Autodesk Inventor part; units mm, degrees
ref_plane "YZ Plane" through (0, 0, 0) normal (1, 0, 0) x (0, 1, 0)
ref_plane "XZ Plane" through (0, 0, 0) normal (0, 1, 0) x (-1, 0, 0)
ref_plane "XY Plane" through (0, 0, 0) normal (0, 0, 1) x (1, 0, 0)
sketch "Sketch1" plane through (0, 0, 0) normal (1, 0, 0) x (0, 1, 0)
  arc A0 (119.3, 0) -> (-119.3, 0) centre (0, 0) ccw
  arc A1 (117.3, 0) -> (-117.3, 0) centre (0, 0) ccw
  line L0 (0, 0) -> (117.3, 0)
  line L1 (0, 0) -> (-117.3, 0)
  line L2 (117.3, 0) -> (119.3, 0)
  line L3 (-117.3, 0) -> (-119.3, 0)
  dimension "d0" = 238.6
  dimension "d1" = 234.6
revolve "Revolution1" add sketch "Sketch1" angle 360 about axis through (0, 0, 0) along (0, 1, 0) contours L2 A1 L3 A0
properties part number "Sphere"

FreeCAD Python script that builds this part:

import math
import FreeCAD as App
import Part
import Sketcher

V = App.Vector

doc = App.newDocument("Part")
body = doc.addObject("PartDesign::Body", "Body")

sketch1 = body.newObject("Sketcher::SketchObject", "Sketch")
sketch1.AttachmentSupport = (doc.getObject("YZ_Plane"), [""])
sketch1.MapMode = "FlatFace"
sketch1.addGeometry([
    Part.LineSegment(V(117.3, 0, 0), V(119.3, 0, 0)),
    Part.ArcOfCircle(Part.Circle(V(0, 0, 0), V(0, 0, 1), 119.3), math.radians(0), math.radians(180)),
    Part.LineSegment(V(-119.3, 0, 0), V(-117.3, 0, 0)),
    Part.ArcOfCircle(Part.Circle(V(0, 0, 0), V(0, 0, 1), 117.3), math.radians(0), math.radians(180)),
], False)
sketch1.addConstraint([
    Sketcher.Constraint("Coincident", 0, 2, 1, 1),
    Sketcher.Constraint("Coincident", 1, 2, 2, 1),
    Sketcher.Constraint("Coincident", 2, 2, 3, 2),
    Sketcher.Constraint("Coincident", 3, 1, 0, 1),
    Sketcher.Constraint("Horizontal", 0),
    Sketcher.Constraint("Horizontal", 2),
    Sketcher.Constraint("Coincident", 1, 3, -1, 1),
    Sketcher.Constraint("Coincident", 3, 3, -1, 1),
    Sketcher.Constraint("PointOnObject", 0, 2, -1),
    Sketcher.Constraint("PointOnObject", 1, 2, -1),
    Sketcher.Constraint("Radius", 1, 119.3),
    Sketcher.Constraint("Radius", 3, 117.3),
])
revolution = body.newObject("PartDesign::Revolution", "Revolution")
revolution.Profile = sketch1
revolution.ReferenceAxis = (sketch1, ["H_Axis"])
revolution.Angle = 360

doc.recompute()
